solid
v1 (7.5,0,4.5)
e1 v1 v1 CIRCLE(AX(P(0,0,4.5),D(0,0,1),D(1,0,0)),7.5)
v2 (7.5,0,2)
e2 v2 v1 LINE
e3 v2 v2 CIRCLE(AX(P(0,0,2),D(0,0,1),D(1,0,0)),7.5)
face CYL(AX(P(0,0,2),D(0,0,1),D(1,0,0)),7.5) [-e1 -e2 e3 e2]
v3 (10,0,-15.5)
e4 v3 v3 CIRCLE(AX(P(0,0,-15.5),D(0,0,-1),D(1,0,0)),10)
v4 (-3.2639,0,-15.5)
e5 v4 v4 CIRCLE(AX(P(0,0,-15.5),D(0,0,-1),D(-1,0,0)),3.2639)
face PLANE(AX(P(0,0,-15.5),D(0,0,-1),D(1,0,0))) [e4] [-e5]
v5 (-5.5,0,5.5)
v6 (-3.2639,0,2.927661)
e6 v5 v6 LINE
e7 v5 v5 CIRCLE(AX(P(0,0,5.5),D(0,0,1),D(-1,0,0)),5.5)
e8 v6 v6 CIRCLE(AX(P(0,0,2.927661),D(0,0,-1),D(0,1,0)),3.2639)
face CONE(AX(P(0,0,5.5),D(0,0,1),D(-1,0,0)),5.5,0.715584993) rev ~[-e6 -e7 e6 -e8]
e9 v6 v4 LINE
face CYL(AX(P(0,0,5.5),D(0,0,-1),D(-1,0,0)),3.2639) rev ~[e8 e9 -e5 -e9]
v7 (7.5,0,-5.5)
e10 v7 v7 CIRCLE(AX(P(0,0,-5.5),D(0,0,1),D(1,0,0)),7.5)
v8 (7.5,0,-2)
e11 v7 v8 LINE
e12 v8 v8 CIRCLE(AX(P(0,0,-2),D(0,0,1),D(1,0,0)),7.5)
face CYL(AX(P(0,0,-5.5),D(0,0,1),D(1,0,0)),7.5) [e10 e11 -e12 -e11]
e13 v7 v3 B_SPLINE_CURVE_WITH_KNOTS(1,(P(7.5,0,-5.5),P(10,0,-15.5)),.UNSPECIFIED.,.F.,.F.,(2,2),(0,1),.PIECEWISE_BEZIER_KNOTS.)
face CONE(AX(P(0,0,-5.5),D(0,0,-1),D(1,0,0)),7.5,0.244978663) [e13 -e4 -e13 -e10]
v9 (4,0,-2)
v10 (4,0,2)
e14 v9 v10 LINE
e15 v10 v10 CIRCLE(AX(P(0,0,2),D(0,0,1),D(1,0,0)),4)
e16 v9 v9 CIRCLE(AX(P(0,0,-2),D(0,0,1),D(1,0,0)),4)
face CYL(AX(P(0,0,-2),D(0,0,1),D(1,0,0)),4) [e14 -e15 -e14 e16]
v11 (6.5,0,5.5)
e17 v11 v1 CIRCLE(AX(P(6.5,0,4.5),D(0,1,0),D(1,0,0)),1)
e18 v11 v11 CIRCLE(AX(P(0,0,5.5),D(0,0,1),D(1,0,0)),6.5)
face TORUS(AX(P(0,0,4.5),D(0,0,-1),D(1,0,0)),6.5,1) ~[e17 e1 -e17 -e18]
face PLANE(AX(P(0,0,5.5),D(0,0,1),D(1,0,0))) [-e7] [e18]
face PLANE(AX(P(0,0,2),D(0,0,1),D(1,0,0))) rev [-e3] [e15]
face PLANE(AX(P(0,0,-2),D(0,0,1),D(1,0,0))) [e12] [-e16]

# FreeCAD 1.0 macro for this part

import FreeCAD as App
import Part
import Sketcher


def edges_at(feature, points):
    """Names of the edges that pass closest to the given points."""
    edges = feature.Shape.Edges
    near = lambda p: min(range(len(edges)), key=lambda i: edges[i].distToShape(Part.Vertex(*p))[0])
    return sorted({f"Edge{near(p) + 1}" for p in points})


def add_polygon(sketch, points):
    """Adds a closed chain of lines whose ends are joined by coincident constraints."""
    first, n = sketch.GeometryCount, len(points)
    for a, b in zip(points, points[1:] + points[:1]):
        sketch.addGeometry(Part.LineSegment(App.Vector(*a, 0), App.Vector(*b, 0)), False)
    for i in range(n):
        sketch.addConstraint(Sketcher.Constraint("Coincident", first + i, 2, first + (i + 1) % n, 1))

doc = App.newDocument("Part")
params = doc.addObject("Spreadsheet::Sheet", "Params")
for row, (alias, value) in enumerate([
    ("sketch1_height", "11 mm"),
    ("sketch1_height2", "4 mm"),
    ("sketch1_width", "7.5 mm"),
    ("revolution_angle", "360 deg"),
    ("sketch2_diameter", "15 mm"),
    ("sketch3_diameter", "20 mm"),
    ("hole_diameter", "6.5278 mm"),
    ("hole_csink_diameter", "11 mm"),
    ("fillet_radius", "1 mm"),
], start=1):
    params.set(f"A{row}", alias)
    params.set(f"B{row}", "=" + value)
    params.setAlias(f"B{row}", alias)

body = doc.addObject("PartDesign::Body", "Body")

sketch1 = body.newObject("Sketcher::SketchObject", "Sketch")
sketch1.AttachmentSupport = (doc.getObject("XZ_Plane"), [""])
sketch1.MapMode = "FlatFace"
add_polygon(sketch1, [(0, 5.5), (0, -5.5), (7.5, -5.5), (7.5, -2), (4, -2), (4, 2), (7.5, 2), (7.5, 5.5)])
sketch1.addConstraint([
    Sketcher.Constraint("Vertical", 0),
    Sketcher.Constraint("Horizontal", 1),
    Sketcher.Constraint("Vertical", 2),
    Sketcher.Constraint("Horizontal", 3),
    Sketcher.Constraint("Vertical", 4),
    Sketcher.Constraint("Horizontal", 5),
    Sketcher.Constraint("Vertical", 6),
    Sketcher.Constraint("Horizontal", 7),
    Sketcher.Constraint("Symmetric", 0, 2, 7, 2, -1, 1),
    Sketcher.Constraint("Symmetric", 2, 2, 5, 2, -1),
    Sketcher.Constraint("Equal", 5, 2),
    Sketcher.Constraint("DistanceY", 0, 2, 0, 1, 11.0),
    Sketcher.Constraint("DistanceY", 4, 1, 4, 2, 4.0),
    Sketcher.Constraint("DistanceX", 1, 1, 1, 2, 7.5),
])
sketch1.setExpression("Constraints[19]", "Params.sketch1_height")
sketch1.setExpression("Constraints[20]", "Params.sketch1_height2")
sketch1.setExpression("Constraints[21]", "Params.sketch1_width")
revolution = body.newObject("PartDesign::Revolution", "Revolution")
revolution.Profile = sketch1
revolution.ReferenceAxis = (sketch1, ["V_Axis"])
revolution.setExpression("Angle", "Params.revolution_angle")

sketch2 = body.newObject("Sketcher::SketchObject", "Sketch001")
sketch2.AttachmentSupport = (doc.getObject("XY_Plane"), [""])
sketch2.MapMode = "FlatFace"
sketch2.AttachmentOffset = App.Placement(App.Vector(0, 0, -5.5), App.Rotation())
sketch2.addGeometry(Part.Circle(App.Vector(0, 0, 0), App.Vector(0, 0, 1), 8), False)
sketch2.addConstraint([
    Sketcher.Constraint("Coincident", 0, 3, -1, 1),
    Sketcher.Constraint("Diameter", 0, 15.0),
])
sketch2.setExpression("Constraints[1]", "Params.sketch2_diameter")

sketch3 = body.newObject("Sketcher::SketchObject", "Sketch002")
sketch3.AttachmentSupport = (doc.getObject("XY_Plane"), [""])
sketch3.MapMode = "FlatFace"
sketch3.AttachmentOffset = App.Placement(App.Vector(0, 0, -15.5), App.Rotation())
sketch3.addGeometry(Part.Circle(App.Vector(0, 0, 0), App.Vector(0, 0, 1), 10), False)
sketch3.addConstraint([
    Sketcher.Constraint("Coincident", 0, 3, -1, 1),
    Sketcher.Constraint("Diameter", 0, 20.0),
])
sketch3.setExpression("Constraints[1]", "Params.sketch3_diameter")

additiveloft = body.newObject("PartDesign::AdditiveLoft", "AdditiveLoft")
additiveloft.Profile = sketch2
additiveloft.Sections = [sketch3]

sketch4 = body.newObject("Sketcher::SketchObject", "Sketch003")
sketch4.AttachmentSupport = (doc.getObject("XY_Plane"), [""])
sketch4.MapMode = "FlatFace"
sketch4.AttachmentOffset = App.Placement(App.Vector(0, 0, 5.5), App.Rotation())
sketch4.addGeometry(Part.Circle(App.Vector(0, 0, 0), App.Vector(0, 0, 1), 3.3), False)
sketch4.addConstraint([
    Sketcher.Constraint("Coincident", 0, 3, -1, 1),
    Sketcher.Constraint("Diameter", 0, 6.5278),
])
doc.recompute()
hole = body.newObject("PartDesign::Hole", "Hole")
hole.Profile = sketch4
hole.ThreadType = "None"
hole.setExpression("Diameter", "Params.hole_diameter")
hole.DepthType = "ThroughAll"
hole.HoleCutType = "Countersink"
hole.setExpression("HoleCutDiameter", "Params.hole_csink_diameter")
hole.HoleCutCountersinkAngle = 82
doc.recompute()

fillet = body.newObject("PartDesign::Fillet", "Fillet")
fillet.Base = (hole, edges_at(hole, [(-7.5, 0, 5.5)]))
fillet.setExpression("Radius", "Params.fillet_radius")

doc.recompute()
